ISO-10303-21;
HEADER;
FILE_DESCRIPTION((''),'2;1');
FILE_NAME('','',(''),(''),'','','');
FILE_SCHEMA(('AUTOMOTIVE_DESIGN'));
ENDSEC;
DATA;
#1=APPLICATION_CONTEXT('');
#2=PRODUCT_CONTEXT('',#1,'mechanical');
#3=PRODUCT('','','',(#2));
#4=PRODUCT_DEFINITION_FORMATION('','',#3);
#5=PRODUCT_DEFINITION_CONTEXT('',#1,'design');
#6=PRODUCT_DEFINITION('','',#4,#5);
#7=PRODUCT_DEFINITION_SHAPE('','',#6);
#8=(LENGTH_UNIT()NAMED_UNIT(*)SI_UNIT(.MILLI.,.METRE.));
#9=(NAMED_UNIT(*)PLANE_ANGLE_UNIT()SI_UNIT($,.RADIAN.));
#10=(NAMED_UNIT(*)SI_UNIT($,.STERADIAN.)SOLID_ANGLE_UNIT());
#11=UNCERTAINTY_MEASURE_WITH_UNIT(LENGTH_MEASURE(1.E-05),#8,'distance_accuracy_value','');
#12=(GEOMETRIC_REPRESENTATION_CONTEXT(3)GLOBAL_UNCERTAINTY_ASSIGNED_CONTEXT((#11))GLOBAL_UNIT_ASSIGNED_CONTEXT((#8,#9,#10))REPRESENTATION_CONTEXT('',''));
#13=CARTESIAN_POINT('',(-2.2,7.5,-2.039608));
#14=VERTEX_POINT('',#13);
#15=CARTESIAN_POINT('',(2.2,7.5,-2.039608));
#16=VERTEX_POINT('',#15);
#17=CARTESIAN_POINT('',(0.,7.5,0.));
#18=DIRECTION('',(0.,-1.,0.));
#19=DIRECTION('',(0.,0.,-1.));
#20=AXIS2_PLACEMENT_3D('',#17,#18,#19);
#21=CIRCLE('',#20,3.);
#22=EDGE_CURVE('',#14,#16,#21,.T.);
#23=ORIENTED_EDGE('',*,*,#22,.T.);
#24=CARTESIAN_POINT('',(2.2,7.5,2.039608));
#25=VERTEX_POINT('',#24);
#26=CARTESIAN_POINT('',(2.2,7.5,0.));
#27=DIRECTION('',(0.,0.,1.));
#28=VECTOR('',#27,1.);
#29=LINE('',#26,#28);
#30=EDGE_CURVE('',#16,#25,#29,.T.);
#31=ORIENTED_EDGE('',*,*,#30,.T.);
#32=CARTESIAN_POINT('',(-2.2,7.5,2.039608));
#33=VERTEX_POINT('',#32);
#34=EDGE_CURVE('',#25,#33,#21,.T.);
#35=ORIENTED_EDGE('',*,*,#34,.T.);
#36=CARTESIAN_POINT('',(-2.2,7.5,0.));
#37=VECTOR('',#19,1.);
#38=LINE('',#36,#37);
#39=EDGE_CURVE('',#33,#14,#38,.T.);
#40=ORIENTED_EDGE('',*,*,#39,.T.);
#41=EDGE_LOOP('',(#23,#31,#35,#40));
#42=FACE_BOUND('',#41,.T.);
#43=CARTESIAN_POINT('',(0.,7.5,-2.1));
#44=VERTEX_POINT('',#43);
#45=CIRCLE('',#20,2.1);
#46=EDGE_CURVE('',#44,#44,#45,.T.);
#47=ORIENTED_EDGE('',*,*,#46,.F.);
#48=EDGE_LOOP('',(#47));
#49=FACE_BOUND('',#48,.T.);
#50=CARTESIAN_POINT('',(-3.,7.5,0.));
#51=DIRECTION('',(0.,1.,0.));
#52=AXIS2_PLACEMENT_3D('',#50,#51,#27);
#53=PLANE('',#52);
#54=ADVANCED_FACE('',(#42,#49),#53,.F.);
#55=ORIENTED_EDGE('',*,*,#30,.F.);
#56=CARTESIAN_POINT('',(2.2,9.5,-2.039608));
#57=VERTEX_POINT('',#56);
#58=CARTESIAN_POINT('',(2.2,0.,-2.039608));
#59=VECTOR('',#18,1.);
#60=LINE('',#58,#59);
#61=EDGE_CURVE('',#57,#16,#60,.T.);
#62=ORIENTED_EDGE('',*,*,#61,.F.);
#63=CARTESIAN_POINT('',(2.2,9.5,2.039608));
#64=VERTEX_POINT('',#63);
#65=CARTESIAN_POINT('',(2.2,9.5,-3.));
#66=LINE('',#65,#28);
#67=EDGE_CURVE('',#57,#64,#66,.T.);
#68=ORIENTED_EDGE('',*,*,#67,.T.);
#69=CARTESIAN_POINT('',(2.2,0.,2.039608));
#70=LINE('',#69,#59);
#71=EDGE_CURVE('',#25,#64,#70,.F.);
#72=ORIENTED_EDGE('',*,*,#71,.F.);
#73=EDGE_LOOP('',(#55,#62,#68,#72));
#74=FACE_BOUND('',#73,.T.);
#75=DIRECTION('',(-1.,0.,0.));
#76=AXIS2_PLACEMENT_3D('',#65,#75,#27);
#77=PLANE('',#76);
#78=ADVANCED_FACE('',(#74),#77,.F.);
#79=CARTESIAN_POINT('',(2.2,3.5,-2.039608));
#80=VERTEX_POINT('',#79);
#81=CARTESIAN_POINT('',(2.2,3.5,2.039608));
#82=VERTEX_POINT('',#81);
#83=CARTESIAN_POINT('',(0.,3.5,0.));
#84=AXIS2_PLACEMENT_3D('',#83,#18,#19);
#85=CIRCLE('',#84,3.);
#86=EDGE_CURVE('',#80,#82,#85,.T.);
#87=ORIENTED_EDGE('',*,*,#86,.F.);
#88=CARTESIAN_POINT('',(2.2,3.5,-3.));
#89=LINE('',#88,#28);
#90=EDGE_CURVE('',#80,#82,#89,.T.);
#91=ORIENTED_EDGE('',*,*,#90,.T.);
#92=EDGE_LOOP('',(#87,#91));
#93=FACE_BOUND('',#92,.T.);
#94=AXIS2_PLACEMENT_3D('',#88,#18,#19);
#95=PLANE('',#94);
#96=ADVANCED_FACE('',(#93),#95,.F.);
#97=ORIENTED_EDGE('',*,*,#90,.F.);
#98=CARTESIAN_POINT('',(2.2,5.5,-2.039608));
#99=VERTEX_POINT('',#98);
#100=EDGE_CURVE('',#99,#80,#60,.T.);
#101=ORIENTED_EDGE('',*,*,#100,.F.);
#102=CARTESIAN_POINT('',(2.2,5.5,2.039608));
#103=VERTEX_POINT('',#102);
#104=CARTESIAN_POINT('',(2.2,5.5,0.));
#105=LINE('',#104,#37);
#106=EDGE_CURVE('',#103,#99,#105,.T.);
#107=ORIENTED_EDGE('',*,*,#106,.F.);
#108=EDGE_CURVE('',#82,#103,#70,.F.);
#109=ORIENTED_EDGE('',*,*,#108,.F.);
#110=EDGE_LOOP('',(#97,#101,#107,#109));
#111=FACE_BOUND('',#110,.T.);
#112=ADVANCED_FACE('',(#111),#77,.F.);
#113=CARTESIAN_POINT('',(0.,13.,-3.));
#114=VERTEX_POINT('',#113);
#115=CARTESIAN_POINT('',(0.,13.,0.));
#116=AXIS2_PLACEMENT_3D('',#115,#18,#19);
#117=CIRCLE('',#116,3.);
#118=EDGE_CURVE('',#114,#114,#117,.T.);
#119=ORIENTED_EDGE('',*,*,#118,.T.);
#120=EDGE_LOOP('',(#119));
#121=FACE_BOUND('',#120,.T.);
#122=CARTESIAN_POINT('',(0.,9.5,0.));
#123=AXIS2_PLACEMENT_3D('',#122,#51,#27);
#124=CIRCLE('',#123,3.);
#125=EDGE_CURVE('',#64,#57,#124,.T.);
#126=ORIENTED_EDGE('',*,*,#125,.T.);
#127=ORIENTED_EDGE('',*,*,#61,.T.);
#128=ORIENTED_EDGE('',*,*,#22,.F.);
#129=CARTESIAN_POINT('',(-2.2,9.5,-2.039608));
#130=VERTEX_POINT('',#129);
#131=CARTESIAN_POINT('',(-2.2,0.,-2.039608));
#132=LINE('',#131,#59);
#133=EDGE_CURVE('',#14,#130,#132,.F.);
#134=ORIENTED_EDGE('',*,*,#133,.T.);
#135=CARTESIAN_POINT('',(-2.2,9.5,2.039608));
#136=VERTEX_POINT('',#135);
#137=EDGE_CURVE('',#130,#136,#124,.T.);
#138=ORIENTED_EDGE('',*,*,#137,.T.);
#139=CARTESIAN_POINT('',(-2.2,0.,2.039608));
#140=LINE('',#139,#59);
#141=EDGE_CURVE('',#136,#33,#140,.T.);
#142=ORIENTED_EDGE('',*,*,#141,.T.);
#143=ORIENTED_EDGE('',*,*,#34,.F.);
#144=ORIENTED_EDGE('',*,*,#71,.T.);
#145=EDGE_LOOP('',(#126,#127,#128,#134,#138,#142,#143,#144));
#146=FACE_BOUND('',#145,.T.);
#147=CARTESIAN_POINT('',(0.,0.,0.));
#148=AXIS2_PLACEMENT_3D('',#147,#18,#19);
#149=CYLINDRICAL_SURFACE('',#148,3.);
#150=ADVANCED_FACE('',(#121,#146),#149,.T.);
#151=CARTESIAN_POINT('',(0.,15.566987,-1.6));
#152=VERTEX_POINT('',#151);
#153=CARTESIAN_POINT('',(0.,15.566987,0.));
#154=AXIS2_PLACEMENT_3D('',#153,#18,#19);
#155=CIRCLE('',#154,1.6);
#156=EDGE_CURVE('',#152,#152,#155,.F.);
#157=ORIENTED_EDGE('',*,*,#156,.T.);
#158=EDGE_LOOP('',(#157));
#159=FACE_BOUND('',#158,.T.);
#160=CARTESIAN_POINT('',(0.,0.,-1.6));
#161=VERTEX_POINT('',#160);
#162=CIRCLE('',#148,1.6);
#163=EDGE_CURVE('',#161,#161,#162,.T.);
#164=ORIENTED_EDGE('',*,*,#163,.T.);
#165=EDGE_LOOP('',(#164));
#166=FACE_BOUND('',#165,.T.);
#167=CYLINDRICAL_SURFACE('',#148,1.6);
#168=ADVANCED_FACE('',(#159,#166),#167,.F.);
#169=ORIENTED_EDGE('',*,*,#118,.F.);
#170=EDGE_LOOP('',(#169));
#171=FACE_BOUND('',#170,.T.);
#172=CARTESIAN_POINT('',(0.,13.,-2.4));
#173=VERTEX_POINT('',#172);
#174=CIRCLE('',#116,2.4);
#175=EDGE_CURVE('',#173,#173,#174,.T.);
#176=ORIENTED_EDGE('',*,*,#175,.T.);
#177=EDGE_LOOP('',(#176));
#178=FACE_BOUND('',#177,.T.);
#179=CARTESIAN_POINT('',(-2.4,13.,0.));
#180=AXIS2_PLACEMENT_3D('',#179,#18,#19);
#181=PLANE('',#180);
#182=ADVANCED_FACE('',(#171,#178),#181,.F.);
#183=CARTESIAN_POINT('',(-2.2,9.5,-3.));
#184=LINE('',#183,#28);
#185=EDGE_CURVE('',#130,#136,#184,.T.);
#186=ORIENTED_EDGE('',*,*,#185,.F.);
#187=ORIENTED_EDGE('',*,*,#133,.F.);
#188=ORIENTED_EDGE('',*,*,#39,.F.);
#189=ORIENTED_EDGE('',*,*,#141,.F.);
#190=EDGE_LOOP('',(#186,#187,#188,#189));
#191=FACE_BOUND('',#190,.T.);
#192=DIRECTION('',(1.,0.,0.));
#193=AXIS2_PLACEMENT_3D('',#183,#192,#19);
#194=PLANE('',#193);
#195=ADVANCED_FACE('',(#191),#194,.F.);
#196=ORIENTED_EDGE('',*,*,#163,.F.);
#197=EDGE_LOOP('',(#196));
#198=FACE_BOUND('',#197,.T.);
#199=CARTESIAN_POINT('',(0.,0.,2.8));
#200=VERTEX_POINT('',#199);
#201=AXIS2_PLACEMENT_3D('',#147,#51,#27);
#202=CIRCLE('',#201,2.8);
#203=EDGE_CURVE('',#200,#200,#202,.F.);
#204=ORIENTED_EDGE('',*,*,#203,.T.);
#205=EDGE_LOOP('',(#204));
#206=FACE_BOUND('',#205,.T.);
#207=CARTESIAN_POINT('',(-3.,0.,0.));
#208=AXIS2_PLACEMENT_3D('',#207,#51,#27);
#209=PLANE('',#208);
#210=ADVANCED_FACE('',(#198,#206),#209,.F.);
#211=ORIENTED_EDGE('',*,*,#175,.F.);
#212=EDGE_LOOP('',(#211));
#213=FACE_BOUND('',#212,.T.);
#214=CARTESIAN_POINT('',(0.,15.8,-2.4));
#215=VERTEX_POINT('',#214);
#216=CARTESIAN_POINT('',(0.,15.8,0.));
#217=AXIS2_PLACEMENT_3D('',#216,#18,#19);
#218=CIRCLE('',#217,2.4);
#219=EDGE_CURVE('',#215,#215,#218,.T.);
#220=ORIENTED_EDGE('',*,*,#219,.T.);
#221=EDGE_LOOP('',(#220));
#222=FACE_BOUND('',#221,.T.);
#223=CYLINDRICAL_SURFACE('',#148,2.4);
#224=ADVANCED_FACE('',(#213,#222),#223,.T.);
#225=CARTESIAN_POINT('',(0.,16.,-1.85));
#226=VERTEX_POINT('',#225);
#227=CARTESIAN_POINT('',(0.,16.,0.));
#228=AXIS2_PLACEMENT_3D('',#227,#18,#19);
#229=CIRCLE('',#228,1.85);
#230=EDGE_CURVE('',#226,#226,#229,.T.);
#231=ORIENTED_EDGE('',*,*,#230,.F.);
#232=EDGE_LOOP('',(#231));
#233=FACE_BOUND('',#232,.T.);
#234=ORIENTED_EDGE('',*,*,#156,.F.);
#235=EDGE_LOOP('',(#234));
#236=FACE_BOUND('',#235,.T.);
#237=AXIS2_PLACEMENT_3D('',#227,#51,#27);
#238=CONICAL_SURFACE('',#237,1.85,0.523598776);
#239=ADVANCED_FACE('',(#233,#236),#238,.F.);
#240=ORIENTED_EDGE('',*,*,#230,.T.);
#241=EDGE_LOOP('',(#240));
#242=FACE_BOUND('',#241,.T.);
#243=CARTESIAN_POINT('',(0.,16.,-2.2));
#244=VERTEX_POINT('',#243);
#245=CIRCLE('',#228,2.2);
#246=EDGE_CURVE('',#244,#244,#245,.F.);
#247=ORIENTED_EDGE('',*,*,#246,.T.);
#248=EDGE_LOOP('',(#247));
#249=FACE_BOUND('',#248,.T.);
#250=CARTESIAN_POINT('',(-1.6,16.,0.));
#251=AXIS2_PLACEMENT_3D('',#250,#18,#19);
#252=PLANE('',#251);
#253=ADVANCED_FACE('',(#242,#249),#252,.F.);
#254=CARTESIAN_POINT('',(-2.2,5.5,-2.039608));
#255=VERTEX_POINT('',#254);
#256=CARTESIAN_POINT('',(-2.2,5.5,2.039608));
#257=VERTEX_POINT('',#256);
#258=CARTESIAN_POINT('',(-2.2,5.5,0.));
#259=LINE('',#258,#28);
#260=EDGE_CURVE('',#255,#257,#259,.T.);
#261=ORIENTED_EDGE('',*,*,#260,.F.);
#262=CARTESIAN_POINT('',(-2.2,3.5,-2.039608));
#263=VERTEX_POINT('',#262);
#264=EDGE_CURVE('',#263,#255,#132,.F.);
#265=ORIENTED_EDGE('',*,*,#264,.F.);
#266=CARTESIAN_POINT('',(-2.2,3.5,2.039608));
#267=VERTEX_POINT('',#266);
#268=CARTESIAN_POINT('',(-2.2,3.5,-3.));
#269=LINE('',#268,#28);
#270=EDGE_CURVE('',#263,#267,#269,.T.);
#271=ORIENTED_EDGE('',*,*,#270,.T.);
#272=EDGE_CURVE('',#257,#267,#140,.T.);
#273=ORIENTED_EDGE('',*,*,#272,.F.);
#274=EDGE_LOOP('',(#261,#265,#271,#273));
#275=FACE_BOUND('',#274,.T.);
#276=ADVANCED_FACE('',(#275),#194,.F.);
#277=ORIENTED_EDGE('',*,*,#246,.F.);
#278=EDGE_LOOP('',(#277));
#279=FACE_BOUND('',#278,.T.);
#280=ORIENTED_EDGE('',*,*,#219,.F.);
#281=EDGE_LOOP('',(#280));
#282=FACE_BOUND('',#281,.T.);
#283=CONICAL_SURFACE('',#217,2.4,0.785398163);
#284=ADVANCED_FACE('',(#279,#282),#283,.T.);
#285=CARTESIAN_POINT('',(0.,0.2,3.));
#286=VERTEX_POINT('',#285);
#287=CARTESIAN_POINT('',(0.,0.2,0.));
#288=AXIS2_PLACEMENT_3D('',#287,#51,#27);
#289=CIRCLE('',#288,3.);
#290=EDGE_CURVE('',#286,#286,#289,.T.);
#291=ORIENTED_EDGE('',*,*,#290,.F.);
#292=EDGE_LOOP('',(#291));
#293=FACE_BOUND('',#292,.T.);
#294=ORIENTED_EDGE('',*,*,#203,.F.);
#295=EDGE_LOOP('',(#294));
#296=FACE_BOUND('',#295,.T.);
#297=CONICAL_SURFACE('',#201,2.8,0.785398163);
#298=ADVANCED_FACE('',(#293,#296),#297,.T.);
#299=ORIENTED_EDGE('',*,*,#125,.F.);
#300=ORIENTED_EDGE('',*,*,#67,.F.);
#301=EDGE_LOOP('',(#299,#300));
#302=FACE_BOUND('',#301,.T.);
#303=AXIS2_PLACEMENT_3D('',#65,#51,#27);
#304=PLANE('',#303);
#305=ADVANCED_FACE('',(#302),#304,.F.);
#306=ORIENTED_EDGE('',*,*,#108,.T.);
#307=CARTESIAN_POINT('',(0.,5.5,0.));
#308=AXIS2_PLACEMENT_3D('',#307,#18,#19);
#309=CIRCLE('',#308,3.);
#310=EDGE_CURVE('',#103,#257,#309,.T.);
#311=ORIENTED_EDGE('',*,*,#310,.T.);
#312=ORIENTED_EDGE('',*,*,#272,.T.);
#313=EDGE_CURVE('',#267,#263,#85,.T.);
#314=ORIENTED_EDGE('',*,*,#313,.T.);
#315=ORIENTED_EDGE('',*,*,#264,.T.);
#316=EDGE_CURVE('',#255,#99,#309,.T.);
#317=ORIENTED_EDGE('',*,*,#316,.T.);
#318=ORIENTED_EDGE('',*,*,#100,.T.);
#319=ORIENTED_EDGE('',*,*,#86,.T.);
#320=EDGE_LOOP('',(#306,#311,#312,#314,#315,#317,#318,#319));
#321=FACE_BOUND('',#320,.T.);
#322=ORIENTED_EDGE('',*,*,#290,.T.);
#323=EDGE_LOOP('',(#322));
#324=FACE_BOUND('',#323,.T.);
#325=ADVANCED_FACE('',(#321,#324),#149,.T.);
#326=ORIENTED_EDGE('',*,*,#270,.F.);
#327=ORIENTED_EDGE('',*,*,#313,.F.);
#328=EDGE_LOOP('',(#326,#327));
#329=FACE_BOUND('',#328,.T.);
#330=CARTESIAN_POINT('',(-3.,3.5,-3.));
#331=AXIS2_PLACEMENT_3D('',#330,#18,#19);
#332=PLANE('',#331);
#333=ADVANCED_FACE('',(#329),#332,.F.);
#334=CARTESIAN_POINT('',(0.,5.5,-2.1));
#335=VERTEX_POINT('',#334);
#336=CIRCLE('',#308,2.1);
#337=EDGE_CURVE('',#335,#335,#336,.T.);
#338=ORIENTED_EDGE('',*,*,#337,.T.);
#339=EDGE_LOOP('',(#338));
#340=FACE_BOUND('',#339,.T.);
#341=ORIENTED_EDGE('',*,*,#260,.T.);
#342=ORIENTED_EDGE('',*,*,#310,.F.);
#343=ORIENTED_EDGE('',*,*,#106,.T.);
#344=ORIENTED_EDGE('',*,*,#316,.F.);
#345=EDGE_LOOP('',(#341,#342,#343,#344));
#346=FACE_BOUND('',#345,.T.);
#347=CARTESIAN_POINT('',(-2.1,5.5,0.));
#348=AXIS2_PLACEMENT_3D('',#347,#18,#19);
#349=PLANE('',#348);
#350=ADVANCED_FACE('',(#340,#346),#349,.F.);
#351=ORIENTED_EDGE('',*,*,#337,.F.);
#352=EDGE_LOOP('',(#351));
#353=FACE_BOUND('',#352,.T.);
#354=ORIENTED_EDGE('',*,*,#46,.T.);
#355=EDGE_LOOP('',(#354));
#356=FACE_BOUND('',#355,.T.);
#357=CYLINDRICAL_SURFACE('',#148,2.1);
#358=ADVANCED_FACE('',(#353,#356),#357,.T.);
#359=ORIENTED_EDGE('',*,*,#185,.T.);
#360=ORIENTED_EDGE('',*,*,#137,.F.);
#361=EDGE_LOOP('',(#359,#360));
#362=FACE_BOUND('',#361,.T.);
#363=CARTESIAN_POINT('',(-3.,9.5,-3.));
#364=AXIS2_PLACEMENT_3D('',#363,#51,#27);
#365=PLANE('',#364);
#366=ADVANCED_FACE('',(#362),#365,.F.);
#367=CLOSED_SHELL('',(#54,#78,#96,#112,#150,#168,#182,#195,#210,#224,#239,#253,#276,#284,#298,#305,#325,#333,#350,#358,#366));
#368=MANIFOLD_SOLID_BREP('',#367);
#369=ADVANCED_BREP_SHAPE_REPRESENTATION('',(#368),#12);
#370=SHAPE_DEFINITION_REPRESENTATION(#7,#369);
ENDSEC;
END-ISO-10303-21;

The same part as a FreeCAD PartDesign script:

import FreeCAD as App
import Part
import Sketcher
from FreeCAD import Vector


def edges_at(feature, points):
    """Names of the edges that pass closest to the given points."""
    edges = feature.Shape.Edges
    near = lambda p: min(range(len(edges)), key=lambda i: edges[i].distToShape(Part.Vertex(*p))[0])
    return sorted({f"Edge{near(p) + 1}" for p in points})


def add_polygon(sketch, points):
    """Adds a closed chain of lines whose ends are joined by coincident constraints."""
    first, n = sketch.GeometryCount, len(points)
    for a, b in zip(points, points[1:] + points[:1]):
        sketch.addGeometry(Part.LineSegment(App.Vector(*a, 0), App.Vector(*b, 0)), False)
    for i in range(n):
        sketch.addConstraint(Sketcher.Constraint("Coincident", first + i, 2, first + (i + 1) % n, 1))

doc = App.newDocument("Part")
body = doc.addObject("PartDesign::Body", "Body")

sketch1 = body.newObject("Sketcher::SketchObject", "Sketch")
sketch1.AttachmentSupport = (doc.getObject("XY_Plane"), [""])
sketch1.MapMode = "FlatFace"
add_polygon(sketch1, [(-1.6, 0), (-1.6, 16), (-2.4, 16), (-2.4, 13), (-3, 13), (-3, 7.5), (-2.1, 7.5), (-2.1, 5.5), (-3, 5.5), (-3, 0)])
sketch1.addConstraint([
    Sketcher.Constraint("Vertical", 0),
    Sketcher.Constraint("Horizontal", 1),
    Sketcher.Constraint("Vertical", 2),
    Sketcher.Constraint("Horizontal", 3),
    Sketcher.Constraint("Vertical", 4),
    Sketcher.Constraint("Horizontal", 5),
    Sketcher.Constraint("Vertical", 6),
    Sketcher.Constraint("Horizontal", 7),
    Sketcher.Constraint("Vertical", 8),
    Sketcher.Constraint("Horizontal", 9),
    Sketcher.Constraint("PointOnObject", 8, 2, -1),
    Sketcher.Constraint("Vertical", 4, 2, 7, 2),
    Sketcher.Constraint("Equal", 4, 8),
    Sketcher.Constraint("DistanceY", 0, 1, 0, 2, 16.0),
    Sketcher.Constraint("DistanceY", 2, 2, 2, 1, 3.0),
    Sketcher.Constraint("DistanceY", 6, 2, 6, 1, 2.0),
    Sketcher.Constraint("DistanceX", 1, 2, 1, 1, 0.8),
    Sketcher.Constraint("DistanceX", 3, 2, 3, 1, 0.6),
    Sketcher.Constraint("DistanceX", 5, 1, 5, 2, 0.9),
    Sketcher.Constraint("DistanceX", 3, 2, -1, 1, 3.0),
])
revolution = body.newObject("PartDesign::Revolution", "Revolution")
revolution.Profile = sketch1
revolution.ReferenceAxis = (sketch1, ["V_Axis"])
revolution.Angle = 360
doc.recompute()

chamfer = body.newObject("PartDesign::Chamfer", "Chamfer")
chamfer.Base = (revolution, edges_at(revolution, [(0, 16, 2.4), (0, 0, 3)]))
chamfer.Size = 0.2
doc.recompute()

chamfer2 = body.newObject("PartDesign::Chamfer", "Chamfer001")
chamfer2.Base = (chamfer, edges_at(chamfer, [(0, 16, 1.6)]))
chamfer2.ChamferType = "Two distances"
chamfer2.Size = 0.25
chamfer2.Size2 = 0.433013

sketch2 = body.newObject("Sketcher::SketchObject", "Sketch001")
sketch2.AttachmentSupport = (doc.getObject("XY_Plane"), [""])
sketch2.MapMode = "FlatFace"
add_polygon(sketch2, [(-3, 9.5), (-3, 3.5), (-2.2, 3.5), (-2.2, 9.5)])
add_polygon(sketch2, [(2.2, 9.5), (2.2, 3.5), (3, 3.5), (3, 9.5)])
sketch2.addConstraint([
    Sketcher.Constraint("Vertical", 0),
    Sketcher.Constraint("Horizontal", 1),
    Sketcher.Constraint("Vertical", 2),
    Sketcher.Constraint("Horizontal", 3),
    Sketcher.Constraint("Vertical", 4),
    Sketcher.Constraint("Horizontal", 5),
    Sketcher.Constraint("Vertical", 6),
    Sketcher.Constraint("Horizontal", 7),
    Sketcher.Constraint("Symmetric", 1, 2, 4, 2, -2),
    Sketcher.Constraint("Symmetric", 3, 2, 6, 2, -2),
    Sketcher.Constraint("DistanceY", 0, 2, 0, 1, 6.0),
    Sketcher.Constraint("DistanceX", 1, 1, 1, 2, 0.8),
    Sketcher.Constraint("DistanceX", 0, 2, -1, 1, 3.0),
    Sketcher.Constraint("DistanceY", -1, 1, 0, 2, 3.5),
])
pocket1 = body.newObject("PartDesign::Pocket", "Pocket")
pocket1.Profile = sketch2
pocket1.Type = "ThroughAll"
pocket1.Midplane = True

doc.recompute()
